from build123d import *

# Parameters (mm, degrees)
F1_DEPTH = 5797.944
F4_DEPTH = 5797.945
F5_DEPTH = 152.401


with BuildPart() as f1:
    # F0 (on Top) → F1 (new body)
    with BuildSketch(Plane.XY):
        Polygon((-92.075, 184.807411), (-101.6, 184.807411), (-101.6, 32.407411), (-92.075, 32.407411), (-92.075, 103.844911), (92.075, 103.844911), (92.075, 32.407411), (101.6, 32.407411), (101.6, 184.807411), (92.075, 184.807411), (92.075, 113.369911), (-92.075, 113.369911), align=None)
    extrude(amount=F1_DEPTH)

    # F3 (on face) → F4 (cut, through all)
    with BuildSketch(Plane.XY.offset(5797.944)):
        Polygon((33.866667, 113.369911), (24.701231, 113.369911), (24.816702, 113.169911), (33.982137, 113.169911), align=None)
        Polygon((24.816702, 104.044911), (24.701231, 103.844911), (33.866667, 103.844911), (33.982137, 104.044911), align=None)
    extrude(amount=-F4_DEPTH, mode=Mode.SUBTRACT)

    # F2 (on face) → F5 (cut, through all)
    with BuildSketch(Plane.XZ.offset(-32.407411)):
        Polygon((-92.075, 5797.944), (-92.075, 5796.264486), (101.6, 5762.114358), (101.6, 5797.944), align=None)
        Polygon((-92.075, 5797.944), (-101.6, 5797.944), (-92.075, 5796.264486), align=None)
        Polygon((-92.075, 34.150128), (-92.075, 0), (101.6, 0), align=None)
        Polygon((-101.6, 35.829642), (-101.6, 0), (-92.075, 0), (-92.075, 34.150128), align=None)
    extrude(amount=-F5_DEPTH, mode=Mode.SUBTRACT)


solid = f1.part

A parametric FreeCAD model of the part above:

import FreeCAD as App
import Part
import Sketcher
from FreeCAD import Vector
Q = App.Units.Quantity

doc = App.newDocument("Part")
body = doc.addObject("PartDesign::Body", "Body")

sketch1 = doc.addObject("Sketcher::SketchObject", "Sketch")
body.addObject(sketch1)
sketch1.AttachmentSupport = (doc.XY_Plane, [""])
sketch1.MapMode = "FlatFace"
sketch1.addGeometry([
    Part.LineSegment(Vector(-92, 185, 0), Vector(-102, 185, 0)),
    Part.LineSegment(Vector(-102, 185, 0), Vector(-102, 32, 0)),
    Part.LineSegment(Vector(-102, 32, 0), Vector(-92, 32, 0)),
    Part.LineSegment(Vector(-92, 32, 0), Vector(-92, 104, 0)),
    Part.LineSegment(Vector(-92, 104, 0), Vector(92, 104, 0)),
    Part.LineSegment(Vector(92, 104, 0), Vector(92, 32, 0)),
    Part.LineSegment(Vector(92, 32, 0), Vector(102, 32, 0)),
    Part.LineSegment(Vector(102, 32, 0), Vector(102, 185, 0)),
    Part.LineSegment(Vector(102, 185, 0), Vector(92, 185, 0)),
    Part.LineSegment(Vector(92, 185, 0), Vector(92, 113, 0)),
    Part.LineSegment(Vector(92, 113, 0), Vector(-92, 113, 0)),
    Part.LineSegment(Vector(-92, 113, 0), Vector(-92, 185, 0)),
], False)
sketch1.addConstraint([
    Sketcher.Constraint("Coincident", 0, 2, 1, 1),
    Sketcher.Constraint("Coincident", 1, 2, 2, 1),
    Sketcher.Constraint("Coincident", 2, 2, 3, 1),
    Sketcher.Constraint("Coincident", 3, 2, 4, 1),
    Sketcher.Constraint("Coincident", 4, 2, 5, 1),
    Sketcher.Constraint("Coincident", 5, 2, 6, 1),
    Sketcher.Constraint("Coincident", 6, 2, 7, 1),
    Sketcher.Constraint("Coincident", 7, 2, 8, 1),
    Sketcher.Constraint("Coincident", 8, 2, 9, 1),
    Sketcher.Constraint("Coincident", 9, 2, 10, 1),
    Sketcher.Constraint("Coincident", 10, 2, 11, 1),
    Sketcher.Constraint("Coincident", 11, 2, 0, 1),
    Sketcher.Constraint("Horizontal", 0),
    Sketcher.Constraint("Vertical", 1),
    Sketcher.Constraint("Horizontal", 2),
    Sketcher.Constraint("Vertical", 3),
    Sketcher.Constraint("Horizontal", 4),
    Sketcher.Constraint("Vertical", 5),
    Sketcher.Constraint("Horizontal", 6),
    Sketcher.Constraint("Vertical", 7),
    Sketcher.Constraint("Horizontal", 8),
    Sketcher.Constraint("Vertical", 9),
    Sketcher.Constraint("Horizontal", 10),
    Sketcher.Constraint("Vertical", 11),
    Sketcher.Constraint("Symmetric", 2, 2, 5, 2, -2),
    Sketcher.Constraint("Symmetric", 0, 2, 7, 2, -2),
    Sketcher.Constraint("Vertical", 5, 2, 8, 2),
    Sketcher.Constraint("Vertical", 3, 2, 10, 2),
    Sketcher.Constraint("Equal", 5, 9),
    Sketcher.Constraint("DistanceY", 1, 2, 1, 1, Q("6 in")),
    Sketcher.Constraint("DistanceX", 0, 2, -1, 1, Q("4 in")),
    Sketcher.Constraint("DistanceX", 4, 1, 4, 2, Q("7.25 in")),
    Sketcher.Constraint("DistanceY", 3, 1, 3, 2, Q("2.8125 in")),
    Sketcher.Constraint("DistanceY", -1, 1, 0, 2, 184.807411),
])
pad1 = doc.addObject("PartDesign::Pad", "Pad")
body.addObject(pad1)
pad1.Profile = sketch1
pad1.Length = 5797.944

sketch2 = doc.addObject("Sketcher::SketchObject", "Sketch001")
body.addObject(sketch2)
sketch2.AttachmentSupport = (doc.XY_Plane, [""])
sketch2.MapMode = "FlatFace"
sketch2.AttachmentOffset = App.Placement(Vector(0, 0, 5797.944), App.Rotation())
sketch2.addGeometry([
    Part.LineSegment(Vector(33.87, 113.37, 0), Vector(24.7, 113.37, 0)),
    Part.LineSegment(Vector(24.7, 113.37, 0), Vector(24.82, 113.17, 0)),
    Part.LineSegment(Vector(24.82, 113.17, 0), Vector(33.98, 113.17, 0)),
    Part.LineSegment(Vector(33.98, 113.17, 0), Vector(33.87, 113.37, 0)),
    Part.LineSegment(Vector(24.82, 104.04, 0), Vector(24.7, 103.84, 0)),
    Part.LineSegment(Vector(24.7, 103.84, 0), Vector(33.87, 103.84, 0)),
    Part.LineSegment(Vector(33.87, 103.84, 0), Vector(33.98, 104.04, 0)),
    Part.LineSegment(Vector(33.98, 104.04, 0), Vector(24.82, 104.04, 0)),
], False)
sketch2.addConstraint([
    Sketcher.Constraint("Coincident", 0, 2, 1, 1),
    Sketcher.Constraint("Coincident", 1, 2, 2, 1),
    Sketcher.Constraint("Coincident", 2, 2, 3, 1),
    Sketcher.Constraint("Coincident", 3, 2, 0, 1),
    Sketcher.Constraint("Coincident", 4, 2, 5, 1),
    Sketcher.Constraint("Coincident", 5, 2, 6, 1),
    Sketcher.Constraint("Coincident", 6, 2, 7, 1),
    Sketcher.Constraint("Coincident", 7, 2, 4, 1),
    Sketcher.Constraint("Horizontal", 0),
    Sketcher.Constraint("Horizontal", 2),
    Sketcher.Constraint("Horizontal", 5),
    Sketcher.Constraint("Horizontal", 7),
    Sketcher.Constraint("Vertical", 0, 2, 4, 2),
    Sketcher.Constraint("Vertical", 3, 2, 5, 2),
    Sketcher.Constraint("Vertical", 2, 2, 6, 2),
    Sketcher.Constraint("Vertical", 1, 2, 7, 2),
    Sketcher.Constraint("Equal", 0, 2),
    Sketcher.Constraint("Equal", 3, 4),
    Sketcher.Constraint("Angle", 3, Q("119.999988 deg")),
    Sketcher.Constraint("DistanceY", 4, 2, 0, 2, Q("0.375 in")),
    Sketcher.Constraint("DistanceX", -1, 1, 1, 2, 24.816702),
    Sketcher.Constraint("DistanceY", 1, 2, 0, 2, 0.2),
    Sketcher.Constraint("DistanceX", 0, 2, 0, 1, 9.165436),
    Sketcher.Constraint("DistanceY", -1, 1, 0, 2, 113.369911),
])
pocket1 = doc.addObject("PartDesign::Pocket", "Pocket")
body.addObject(pocket1)
pocket1.Profile = sketch2
pocket1.Type = "ThroughAll"

sketch3 = doc.addObject("Sketcher::SketchObject", "Sketch002")
body.addObject(sketch3)
sketch3.AttachmentSupport = (doc.XZ_Plane, [""])
sketch3.MapMode = "FlatFace"
sketch3.AttachmentOffset = App.Placement(Vector(0, 0, -32.407411), App.Rotation())
sketch3.addGeometry([
    Part.LineSegment(Vector(-92, 5796, 0), Vector(102, 5762, 0)),
    Part.LineSegment(Vector(102, 5762, 0), Vector(102, 5798, 0)),
    Part.LineSegment(Vector(102, 5798, 0), Vector(-102, 5798, 0)),
    Part.LineSegment(Vector(-102, 5798, 0), Vector(-92, 5796, 0)),
    Part.LineSegment(Vector(102, 0, 0), Vector(-92, 34, 0)),
    Part.LineSegment(Vector(-92, 34, 0), Vector(-102, 36, 0)),
    Part.LineSegment(Vector(-102, 36, 0), Vector(-102, 0, 0)),
    Part.LineSegment(Vector(-102, 0, 0), Vector(102, 0, 0)),
], False)
sketch3.addConstraint([
    Sketcher.Constraint("Coincident", 0, 2, 1, 1),
    Sketcher.Constraint("Coincident", 1, 2, 2, 1),
    Sketcher.Constraint("Coincident", 2, 2, 3, 1),
    Sketcher.Constraint("Coincident", 3, 2, 0, 1),
    Sketcher.Constraint("Coincident", 4, 2, 5, 1),
    Sketcher.Constraint("Coincident", 5, 2, 6, 1),
    Sketcher.Constraint("Coincident", 6, 2, 7, 1),
    Sketcher.Constraint("Coincident", 7, 2, 4, 1),
    Sketcher.Constraint("Vertical", 1),
    Sketcher.Constraint("Horizontal", 2),
    Sketcher.Constraint("Vertical", 6),
    Sketcher.Constraint("Horizontal", 7),
    Sketcher.Constraint("Symmetric", 6, 2, 7, 2, -1, 1),
    Sketcher.Constraint("Parallel", 0, 3),
    Sketcher.Constraint("Parallel", 3, 4),
    Sketcher.Constraint("Parallel", 4, 5),
    Sketcher.Constraint("Vertical", 3, 2, 4, 2),
    Sketcher.Constraint("Vertical", 2, 2, 5, 2),
    Sketcher.Constraint("Vertical", 1, 2, 7, 2),
    Sketcher.Constraint("DistanceX", 2, 2, 2, 1, Q("8 in")),
    Sketcher.Constraint("Angle", 0, Q("-10 deg")),
    Sketcher.Constraint("DistanceX", 3, 2, -1, 1, Q("3.625 in")),
    Sketcher.Constraint("DistanceY", -1, 1, 1, 2, 5797.944),
])
pocket2 = doc.addObject("PartDesign::Pocket", "Pocket001")
body.addObject(pocket2)
pocket2.Profile = sketch3
pocket2.Type = "ThroughAll"

doc.recompute()
